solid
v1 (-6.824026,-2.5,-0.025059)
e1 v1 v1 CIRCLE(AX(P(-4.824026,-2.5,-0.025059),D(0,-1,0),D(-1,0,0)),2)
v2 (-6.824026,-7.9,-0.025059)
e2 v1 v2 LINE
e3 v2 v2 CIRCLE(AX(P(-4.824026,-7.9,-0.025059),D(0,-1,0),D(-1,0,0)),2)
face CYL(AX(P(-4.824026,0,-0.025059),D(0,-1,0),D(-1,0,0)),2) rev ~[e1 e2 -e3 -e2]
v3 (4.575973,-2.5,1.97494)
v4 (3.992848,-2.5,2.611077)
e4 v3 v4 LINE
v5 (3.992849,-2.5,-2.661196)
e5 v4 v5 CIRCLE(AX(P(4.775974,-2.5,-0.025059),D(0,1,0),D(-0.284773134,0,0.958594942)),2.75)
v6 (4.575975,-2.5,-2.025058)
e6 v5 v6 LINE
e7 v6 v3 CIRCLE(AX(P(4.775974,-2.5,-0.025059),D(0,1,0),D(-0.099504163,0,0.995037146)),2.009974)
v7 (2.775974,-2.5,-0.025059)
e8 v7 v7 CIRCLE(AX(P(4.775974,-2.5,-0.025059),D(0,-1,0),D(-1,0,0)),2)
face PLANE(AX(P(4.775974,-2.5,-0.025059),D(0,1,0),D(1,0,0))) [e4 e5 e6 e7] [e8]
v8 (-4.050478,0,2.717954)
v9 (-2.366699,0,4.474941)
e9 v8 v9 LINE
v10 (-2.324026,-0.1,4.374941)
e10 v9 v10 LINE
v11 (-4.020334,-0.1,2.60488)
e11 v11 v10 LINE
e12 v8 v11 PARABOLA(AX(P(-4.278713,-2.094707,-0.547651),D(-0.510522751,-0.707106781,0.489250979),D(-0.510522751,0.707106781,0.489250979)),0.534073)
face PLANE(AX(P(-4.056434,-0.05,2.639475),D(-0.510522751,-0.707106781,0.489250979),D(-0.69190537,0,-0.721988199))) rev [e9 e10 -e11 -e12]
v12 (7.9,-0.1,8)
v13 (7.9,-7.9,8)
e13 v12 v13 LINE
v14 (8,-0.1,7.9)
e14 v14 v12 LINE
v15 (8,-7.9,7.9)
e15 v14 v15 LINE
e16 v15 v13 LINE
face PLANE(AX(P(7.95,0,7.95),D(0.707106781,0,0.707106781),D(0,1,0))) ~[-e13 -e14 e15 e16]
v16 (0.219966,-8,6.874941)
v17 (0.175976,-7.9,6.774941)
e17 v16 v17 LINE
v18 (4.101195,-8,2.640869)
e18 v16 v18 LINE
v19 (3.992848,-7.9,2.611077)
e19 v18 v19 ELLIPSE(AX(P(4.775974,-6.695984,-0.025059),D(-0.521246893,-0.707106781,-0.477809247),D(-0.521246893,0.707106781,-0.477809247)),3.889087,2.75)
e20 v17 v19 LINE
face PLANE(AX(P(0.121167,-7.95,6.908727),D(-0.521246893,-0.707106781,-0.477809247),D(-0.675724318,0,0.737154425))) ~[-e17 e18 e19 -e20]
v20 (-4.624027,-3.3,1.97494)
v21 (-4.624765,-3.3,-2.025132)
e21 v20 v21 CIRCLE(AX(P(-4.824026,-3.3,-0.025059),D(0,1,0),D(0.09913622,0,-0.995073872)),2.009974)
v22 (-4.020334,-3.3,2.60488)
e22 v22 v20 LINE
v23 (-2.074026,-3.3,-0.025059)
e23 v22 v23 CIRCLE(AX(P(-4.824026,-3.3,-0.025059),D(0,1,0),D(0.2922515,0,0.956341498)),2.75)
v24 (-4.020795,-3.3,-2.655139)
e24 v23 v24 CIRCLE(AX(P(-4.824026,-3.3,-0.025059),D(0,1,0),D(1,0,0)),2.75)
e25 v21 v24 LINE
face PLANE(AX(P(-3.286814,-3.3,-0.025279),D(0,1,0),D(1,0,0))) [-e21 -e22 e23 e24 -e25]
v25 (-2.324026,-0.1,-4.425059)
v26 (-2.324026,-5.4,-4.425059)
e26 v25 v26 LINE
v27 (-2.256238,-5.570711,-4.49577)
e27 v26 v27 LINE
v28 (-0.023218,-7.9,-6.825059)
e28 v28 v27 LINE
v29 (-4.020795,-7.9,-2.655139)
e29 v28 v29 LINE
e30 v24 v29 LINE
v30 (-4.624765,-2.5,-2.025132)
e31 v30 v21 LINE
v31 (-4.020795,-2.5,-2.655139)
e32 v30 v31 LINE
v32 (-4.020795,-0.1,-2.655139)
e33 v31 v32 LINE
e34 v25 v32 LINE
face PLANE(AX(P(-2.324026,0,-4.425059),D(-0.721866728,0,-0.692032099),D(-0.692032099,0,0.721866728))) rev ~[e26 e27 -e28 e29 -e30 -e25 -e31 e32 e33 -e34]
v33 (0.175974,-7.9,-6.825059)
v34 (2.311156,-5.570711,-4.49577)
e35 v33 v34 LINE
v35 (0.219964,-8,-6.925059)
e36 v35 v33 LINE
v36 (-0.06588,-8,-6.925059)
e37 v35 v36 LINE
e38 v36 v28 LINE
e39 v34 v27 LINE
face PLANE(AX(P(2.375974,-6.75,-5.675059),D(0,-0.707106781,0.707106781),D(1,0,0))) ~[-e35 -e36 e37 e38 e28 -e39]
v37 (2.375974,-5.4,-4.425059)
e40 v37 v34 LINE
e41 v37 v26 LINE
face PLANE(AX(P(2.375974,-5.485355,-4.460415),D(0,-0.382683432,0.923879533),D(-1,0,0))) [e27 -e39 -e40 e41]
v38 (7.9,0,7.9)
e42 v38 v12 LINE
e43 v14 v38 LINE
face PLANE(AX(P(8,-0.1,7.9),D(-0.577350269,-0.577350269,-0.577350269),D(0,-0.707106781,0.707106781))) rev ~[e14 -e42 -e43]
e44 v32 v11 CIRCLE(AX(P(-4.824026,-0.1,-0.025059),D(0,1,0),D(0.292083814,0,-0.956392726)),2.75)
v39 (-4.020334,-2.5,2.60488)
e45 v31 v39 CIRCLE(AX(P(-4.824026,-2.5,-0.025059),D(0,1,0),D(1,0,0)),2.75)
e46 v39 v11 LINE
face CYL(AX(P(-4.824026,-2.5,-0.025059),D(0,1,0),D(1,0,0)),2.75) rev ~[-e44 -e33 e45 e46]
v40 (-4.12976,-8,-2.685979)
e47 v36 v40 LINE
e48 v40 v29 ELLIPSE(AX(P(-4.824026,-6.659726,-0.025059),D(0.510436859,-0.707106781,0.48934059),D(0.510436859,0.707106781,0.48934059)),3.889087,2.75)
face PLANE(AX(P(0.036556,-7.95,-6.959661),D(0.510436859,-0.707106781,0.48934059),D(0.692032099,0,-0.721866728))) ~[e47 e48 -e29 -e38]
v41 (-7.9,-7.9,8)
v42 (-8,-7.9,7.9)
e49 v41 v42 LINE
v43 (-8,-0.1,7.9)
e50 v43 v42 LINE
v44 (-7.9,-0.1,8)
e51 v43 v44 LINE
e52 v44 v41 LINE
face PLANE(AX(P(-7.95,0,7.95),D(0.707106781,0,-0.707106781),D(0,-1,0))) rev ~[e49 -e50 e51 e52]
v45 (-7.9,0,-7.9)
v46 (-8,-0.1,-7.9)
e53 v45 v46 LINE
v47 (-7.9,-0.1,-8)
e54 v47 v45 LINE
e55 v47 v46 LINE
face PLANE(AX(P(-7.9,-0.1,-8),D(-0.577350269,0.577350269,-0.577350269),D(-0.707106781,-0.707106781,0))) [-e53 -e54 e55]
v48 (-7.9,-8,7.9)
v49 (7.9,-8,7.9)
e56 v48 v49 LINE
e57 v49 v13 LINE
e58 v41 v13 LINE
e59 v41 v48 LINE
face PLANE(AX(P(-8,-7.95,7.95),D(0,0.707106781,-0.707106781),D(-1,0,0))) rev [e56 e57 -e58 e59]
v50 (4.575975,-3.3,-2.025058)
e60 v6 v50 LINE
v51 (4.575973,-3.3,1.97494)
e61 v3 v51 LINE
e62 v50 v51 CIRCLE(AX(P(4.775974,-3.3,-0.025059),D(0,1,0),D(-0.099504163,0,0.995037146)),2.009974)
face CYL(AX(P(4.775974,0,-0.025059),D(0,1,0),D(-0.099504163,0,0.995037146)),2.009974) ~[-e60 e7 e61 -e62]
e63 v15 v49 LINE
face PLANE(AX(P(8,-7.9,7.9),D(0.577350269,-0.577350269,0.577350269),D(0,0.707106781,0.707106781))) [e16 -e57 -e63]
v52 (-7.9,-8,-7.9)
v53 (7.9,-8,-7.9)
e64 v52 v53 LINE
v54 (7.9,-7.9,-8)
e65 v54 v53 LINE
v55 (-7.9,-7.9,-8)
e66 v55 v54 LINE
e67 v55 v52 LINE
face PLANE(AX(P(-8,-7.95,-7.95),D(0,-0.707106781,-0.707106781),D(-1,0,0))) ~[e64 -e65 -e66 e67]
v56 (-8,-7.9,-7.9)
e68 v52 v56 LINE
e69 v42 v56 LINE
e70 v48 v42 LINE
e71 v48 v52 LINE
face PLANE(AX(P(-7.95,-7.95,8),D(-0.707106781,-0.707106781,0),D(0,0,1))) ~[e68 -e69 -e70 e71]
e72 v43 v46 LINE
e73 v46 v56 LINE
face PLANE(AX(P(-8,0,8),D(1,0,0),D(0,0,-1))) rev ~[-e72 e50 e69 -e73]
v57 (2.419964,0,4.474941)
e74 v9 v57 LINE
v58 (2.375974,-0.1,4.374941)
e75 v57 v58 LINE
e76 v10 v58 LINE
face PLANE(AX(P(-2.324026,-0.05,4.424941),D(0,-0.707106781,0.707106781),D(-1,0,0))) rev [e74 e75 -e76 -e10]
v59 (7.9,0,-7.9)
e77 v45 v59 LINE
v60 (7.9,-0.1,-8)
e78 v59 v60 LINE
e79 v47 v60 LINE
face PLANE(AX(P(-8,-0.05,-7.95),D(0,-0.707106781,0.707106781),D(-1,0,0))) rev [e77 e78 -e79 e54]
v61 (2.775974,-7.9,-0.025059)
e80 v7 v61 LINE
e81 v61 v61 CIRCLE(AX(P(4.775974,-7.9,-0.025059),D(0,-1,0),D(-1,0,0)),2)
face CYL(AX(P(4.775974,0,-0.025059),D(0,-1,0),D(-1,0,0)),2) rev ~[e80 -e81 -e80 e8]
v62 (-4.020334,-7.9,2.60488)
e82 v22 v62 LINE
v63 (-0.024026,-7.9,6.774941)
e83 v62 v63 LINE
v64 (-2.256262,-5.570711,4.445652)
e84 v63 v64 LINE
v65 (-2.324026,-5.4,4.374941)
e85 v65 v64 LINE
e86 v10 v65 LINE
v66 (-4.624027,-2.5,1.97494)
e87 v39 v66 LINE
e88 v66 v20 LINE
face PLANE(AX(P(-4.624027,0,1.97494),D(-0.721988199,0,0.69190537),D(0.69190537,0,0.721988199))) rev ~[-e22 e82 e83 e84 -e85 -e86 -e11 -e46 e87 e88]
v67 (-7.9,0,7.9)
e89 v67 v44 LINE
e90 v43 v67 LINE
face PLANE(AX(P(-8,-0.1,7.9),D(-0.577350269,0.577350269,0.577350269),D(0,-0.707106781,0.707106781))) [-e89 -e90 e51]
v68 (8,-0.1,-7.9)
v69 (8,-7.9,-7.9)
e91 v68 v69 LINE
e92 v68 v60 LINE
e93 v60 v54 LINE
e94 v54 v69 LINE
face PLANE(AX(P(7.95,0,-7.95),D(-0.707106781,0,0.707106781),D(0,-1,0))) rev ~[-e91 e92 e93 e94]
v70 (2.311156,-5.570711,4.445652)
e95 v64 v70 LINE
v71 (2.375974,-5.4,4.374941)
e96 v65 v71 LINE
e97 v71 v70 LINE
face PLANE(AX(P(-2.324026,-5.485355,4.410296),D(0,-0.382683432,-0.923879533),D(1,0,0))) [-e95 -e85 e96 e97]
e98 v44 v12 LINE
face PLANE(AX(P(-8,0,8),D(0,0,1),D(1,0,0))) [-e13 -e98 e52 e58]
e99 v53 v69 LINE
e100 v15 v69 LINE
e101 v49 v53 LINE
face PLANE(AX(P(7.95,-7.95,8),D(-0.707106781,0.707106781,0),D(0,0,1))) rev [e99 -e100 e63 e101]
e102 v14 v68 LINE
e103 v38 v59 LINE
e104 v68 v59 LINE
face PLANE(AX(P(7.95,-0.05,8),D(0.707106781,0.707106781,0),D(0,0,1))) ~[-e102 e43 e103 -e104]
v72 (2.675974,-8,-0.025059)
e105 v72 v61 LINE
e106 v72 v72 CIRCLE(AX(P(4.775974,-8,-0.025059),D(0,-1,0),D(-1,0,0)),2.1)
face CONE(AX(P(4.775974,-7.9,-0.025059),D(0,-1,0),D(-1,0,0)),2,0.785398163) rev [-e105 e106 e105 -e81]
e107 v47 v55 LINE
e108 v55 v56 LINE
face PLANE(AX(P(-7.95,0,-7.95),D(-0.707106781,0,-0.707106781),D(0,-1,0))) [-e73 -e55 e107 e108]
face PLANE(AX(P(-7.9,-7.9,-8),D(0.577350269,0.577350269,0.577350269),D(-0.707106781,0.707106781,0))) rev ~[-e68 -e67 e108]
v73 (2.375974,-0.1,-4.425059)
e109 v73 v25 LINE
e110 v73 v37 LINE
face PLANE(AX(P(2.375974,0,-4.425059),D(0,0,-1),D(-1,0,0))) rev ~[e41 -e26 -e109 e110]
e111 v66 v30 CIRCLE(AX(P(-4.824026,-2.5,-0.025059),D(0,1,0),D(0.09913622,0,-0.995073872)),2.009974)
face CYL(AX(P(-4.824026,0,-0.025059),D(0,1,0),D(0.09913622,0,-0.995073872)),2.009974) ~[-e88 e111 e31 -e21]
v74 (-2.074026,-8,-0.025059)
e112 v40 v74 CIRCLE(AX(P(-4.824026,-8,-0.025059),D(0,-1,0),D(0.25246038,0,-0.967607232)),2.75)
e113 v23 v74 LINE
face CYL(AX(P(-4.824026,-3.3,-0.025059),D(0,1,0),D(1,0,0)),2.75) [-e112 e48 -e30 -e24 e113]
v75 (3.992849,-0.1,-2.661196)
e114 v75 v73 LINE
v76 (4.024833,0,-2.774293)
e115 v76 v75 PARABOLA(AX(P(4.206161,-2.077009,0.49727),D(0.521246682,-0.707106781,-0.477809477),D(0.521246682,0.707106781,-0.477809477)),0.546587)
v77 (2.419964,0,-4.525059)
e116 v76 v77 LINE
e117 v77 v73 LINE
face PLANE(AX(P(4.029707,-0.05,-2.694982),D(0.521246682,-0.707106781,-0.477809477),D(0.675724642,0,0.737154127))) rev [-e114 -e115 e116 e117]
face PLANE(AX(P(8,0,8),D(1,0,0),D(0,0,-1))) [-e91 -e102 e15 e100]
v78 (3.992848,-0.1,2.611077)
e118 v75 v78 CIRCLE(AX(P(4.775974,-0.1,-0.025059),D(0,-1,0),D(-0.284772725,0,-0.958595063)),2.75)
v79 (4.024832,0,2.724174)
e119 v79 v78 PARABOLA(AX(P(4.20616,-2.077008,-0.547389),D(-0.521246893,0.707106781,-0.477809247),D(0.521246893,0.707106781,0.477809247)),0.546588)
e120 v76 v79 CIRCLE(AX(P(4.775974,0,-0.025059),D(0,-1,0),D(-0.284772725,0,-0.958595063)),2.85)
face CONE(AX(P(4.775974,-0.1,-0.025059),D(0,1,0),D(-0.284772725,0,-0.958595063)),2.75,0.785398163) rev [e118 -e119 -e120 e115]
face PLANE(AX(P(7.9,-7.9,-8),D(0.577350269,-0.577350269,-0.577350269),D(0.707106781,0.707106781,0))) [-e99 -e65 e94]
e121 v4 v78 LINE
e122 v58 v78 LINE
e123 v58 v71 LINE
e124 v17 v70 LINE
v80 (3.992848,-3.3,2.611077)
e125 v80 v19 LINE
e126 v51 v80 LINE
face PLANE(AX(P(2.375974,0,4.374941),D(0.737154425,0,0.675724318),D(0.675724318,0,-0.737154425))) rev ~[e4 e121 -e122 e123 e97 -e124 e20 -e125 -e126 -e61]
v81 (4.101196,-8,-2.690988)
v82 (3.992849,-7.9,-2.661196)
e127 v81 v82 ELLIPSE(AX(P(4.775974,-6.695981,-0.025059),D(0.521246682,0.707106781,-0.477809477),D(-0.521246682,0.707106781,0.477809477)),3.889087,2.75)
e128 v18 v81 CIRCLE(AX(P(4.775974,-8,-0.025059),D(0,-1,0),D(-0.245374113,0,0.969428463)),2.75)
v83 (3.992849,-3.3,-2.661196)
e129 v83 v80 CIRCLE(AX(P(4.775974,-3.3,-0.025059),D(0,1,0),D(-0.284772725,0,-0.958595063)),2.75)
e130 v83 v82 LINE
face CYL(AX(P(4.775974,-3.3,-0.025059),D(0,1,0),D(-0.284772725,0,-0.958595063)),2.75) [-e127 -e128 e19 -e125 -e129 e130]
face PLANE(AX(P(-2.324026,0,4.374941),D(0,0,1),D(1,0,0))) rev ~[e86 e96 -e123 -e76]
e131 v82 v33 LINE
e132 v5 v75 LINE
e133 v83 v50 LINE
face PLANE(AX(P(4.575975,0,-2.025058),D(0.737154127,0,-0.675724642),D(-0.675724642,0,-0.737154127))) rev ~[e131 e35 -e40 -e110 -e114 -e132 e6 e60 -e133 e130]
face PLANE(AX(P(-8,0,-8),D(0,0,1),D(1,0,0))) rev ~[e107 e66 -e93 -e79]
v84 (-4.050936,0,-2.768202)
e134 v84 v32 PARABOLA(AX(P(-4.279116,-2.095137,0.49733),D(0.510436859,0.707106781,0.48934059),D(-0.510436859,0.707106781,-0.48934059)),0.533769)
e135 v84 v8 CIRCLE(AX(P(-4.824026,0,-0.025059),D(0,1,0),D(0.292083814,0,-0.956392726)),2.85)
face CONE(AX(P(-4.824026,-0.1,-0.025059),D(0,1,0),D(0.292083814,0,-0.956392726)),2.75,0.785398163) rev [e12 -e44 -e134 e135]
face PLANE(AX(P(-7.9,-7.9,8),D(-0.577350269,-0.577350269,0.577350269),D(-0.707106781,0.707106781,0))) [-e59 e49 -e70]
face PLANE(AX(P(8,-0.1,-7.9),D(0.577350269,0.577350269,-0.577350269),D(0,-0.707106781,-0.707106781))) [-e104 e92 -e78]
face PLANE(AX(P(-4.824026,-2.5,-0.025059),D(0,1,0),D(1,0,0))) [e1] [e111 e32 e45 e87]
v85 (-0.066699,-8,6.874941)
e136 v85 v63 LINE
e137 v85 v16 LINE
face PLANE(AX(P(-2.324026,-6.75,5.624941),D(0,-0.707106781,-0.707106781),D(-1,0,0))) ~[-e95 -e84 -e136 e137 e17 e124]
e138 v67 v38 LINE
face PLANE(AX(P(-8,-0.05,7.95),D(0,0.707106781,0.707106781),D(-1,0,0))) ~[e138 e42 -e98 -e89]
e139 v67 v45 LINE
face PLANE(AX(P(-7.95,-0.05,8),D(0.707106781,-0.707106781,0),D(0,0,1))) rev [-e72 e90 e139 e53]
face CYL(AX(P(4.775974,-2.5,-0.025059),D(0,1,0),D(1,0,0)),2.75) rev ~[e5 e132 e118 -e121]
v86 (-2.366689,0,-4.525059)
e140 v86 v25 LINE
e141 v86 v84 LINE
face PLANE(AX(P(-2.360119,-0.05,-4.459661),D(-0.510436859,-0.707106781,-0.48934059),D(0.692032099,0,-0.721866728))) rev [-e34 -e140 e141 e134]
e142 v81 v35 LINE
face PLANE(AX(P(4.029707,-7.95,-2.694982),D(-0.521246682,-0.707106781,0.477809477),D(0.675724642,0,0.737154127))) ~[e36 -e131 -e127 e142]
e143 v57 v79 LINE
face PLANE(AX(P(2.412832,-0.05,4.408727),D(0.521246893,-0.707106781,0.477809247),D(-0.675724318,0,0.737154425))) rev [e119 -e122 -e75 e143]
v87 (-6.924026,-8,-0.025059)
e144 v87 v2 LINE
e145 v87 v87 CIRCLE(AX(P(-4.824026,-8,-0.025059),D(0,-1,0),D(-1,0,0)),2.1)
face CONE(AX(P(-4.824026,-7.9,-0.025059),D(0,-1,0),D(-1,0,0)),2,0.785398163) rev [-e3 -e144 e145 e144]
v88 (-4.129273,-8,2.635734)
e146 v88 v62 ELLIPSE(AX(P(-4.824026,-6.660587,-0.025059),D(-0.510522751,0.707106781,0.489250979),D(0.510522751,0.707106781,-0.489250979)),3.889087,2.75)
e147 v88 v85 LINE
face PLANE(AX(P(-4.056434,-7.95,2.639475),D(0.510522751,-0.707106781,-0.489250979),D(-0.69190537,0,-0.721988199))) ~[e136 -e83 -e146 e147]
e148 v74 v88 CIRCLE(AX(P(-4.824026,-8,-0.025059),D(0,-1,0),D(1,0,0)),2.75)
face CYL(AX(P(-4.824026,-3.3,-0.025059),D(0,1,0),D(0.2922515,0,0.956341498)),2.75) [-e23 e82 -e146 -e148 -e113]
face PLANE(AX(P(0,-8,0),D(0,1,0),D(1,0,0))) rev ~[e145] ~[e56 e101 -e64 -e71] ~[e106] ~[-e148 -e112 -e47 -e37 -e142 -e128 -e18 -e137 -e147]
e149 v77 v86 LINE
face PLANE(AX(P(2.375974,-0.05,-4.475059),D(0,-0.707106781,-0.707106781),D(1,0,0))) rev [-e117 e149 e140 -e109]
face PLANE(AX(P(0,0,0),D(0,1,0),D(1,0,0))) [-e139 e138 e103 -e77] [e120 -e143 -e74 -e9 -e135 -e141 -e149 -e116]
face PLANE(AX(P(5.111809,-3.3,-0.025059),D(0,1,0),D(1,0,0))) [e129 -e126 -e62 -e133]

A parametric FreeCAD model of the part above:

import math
import FreeCAD as App
import Part
import Sketcher
from FreeCAD import Vector
Q = App.Units.Quantity


def edges_at(feature, points):
    """Names of the edges that pass closest to the given points."""
    edges = feature.Shape.Edges
    near = lambda p: min(range(len(edges)), key=lambda i: edges[i].distToShape(Part.Vertex(*p))[0])
    return sorted({f"Edge{near(p) + 1}" for p in points})

doc = App.newDocument("Part")
body = doc.addObject("PartDesign::Body", "Body")

# Sketch on XZ plane
sketch1 = doc.addObject("Sketcher::SketchObject", "Sketch")
body.addObject(sketch1)
sketch1.AttachmentSupport = (doc.XZ_Plane, [""])
sketch1.MapMode = "FlatFace"
sketch1.addGeometry([
    Part.LineSegment(Vector(-8, -8, 0), Vector(-8, 8, 0)),  # 0
    Part.LineSegment(Vector(-8, 8, 0), Vector(8, 8, 0)),  # 1
    Part.LineSegment(Vector(8, 8, 0), Vector(8, -8, 0)),  # 2
    Part.LineSegment(Vector(8, -8, 0), Vector(-8, -8, 0)),  # 3
    Part.LineSegment(Vector(-2.324026, 4.374941, 0), Vector(-4.624027, 1.97494, 0)),  # 4
    Part.ArcOfCircle(Part.Circle(Vector(-4.824026, -0.025059, 0), Vector(0, 0, 1), 2.009974), math.radians(-84.310568), math.radians(84.289432)),  # 5
    Part.LineSegment(Vector(-4.624765, -2.025132, 0), Vector(-2.324026, -4.425059, 0)),  # 6
    Part.LineSegment(Vector(-2.324026, -4.425059, 0), Vector(2.375974, -4.425059, 0)),  # 7
    Part.LineSegment(Vector(2.375974, -4.425059, 0), Vector(4.575975, -2.025058, 0)),  # 8
    Part.ArcOfCircle(Part.Circle(Vector(4.775974, -0.025059, 0), Vector(0, 0, 1), 2.009974), math.radians(95.710619), math.radians(264.289432)),  # 9
    Part.LineSegment(Vector(4.575973, 1.97494, 0), Vector(2.375974, 4.374941, 0)),  # 10
    Part.LineSegment(Vector(2.375974, 4.374941, 0), Vector(-2.324026, 4.374941, 0)),  # 11
], False)
sketch1.addConstraint([
    Sketcher.Constraint("Coincident", 0, 2, 1, 1),
    Sketcher.Constraint("Coincident", 1, 2, 2, 1),
    Sketcher.Constraint("Coincident", 2, 2, 3, 1),
    Sketcher.Constraint("Coincident", 3, 2, 0, 1),
    Sketcher.Constraint("Coincident", 4, 2, 5, 2),
    Sketcher.Constraint("Coincident", 5, 1, 6, 1),
    Sketcher.Constraint("Coincident", 6, 2, 7, 1),
    Sketcher.Constraint("Coincident", 7, 2, 8, 1),
    Sketcher.Constraint("Coincident", 8, 2, 9, 2),
    Sketcher.Constraint("Coincident", 9, 1, 10, 1),
    Sketcher.Constraint("Coincident", 10, 2, 11, 1),
    Sketcher.Constraint("Coincident", 11, 2, 4, 1),
    Sketcher.Constraint("Vertical", 0),
    Sketcher.Constraint("Horizontal", 1),
    Sketcher.Constraint("Vertical", 2),
    Sketcher.Constraint("Horizontal", 3),
    Sketcher.Constraint("Horizontal", 7),
    Sketcher.Constraint("Horizontal", 11),
    Sketcher.Constraint("Equal", 5, 9),
    Sketcher.Constraint("Symmetric", 0, 2, 2, 2, -1, 1),
    Sketcher.Constraint("Horizontal", 5, 3, 9, 3),
    Sketcher.Constraint("Horizontal", 4, 2, 9, 1),
    Sketcher.Constraint("Vertical", 8, 2, 9, 1),
    Sketcher.Constraint("Vertical", 7, 2, 10, 2),
    Sketcher.Constraint("Vertical", 6, 2, 11, 2),
    Sketcher.Constraint("Equal", 3, 0),
    Sketcher.Constraint("Equal", 8, 10),
    Sketcher.Constraint("DistanceX", 1, 1, 1, 2, Q("16 mm")),
    Sketcher.Constraint("DistanceX", 7, 1, 7, 2, Q("4.7 mm")),
    Sketcher.Constraint("DistanceY", 5, 3, 4, 2, Q("1.999999 mm")),
    Sketcher.Constraint("DistanceX", 4, 2, 10, 2, Q("7.000001 mm")),
    Sketcher.Constraint("DistanceX", 5, 3, 9, 3, Q("9.6 mm")),
    Sketcher.Constraint("DistanceX", 5, 3, 4, 2, Q("0.199999 mm")),
    Sketcher.Constraint("DistanceY", 6, 2, 5, 3, Q("4.4 mm")),
    Sketcher.Constraint("DistanceY", 5, 3, -1, 1, Q("0.025059 mm")),
    Sketcher.Constraint("DistanceY", 5, 1, -1, 1, Q("2.025132 mm")),
    Sketcher.Constraint("DistanceX", 5, 3, -1, 1, Q("4.824026 mm")),
])
pad1 = doc.addObject("PartDesign::Pad", "Pad")
body.addObject(pad1)
pad1.Profile = sketch1
pad1.Length = 8

# Sketch on XZ plane
sketch2 = doc.addObject("Sketcher::SketchObject", "Sketch001")
body.addObject(sketch2)
sketch2.AttachmentSupport = (doc.XZ_Plane, [""])
sketch2.MapMode = "FlatFace"
sketch2.AttachmentOffset = App.Placement(Vector(0, 0, 3.3), App.Rotation())
sketch2.addGeometry([
    Part.ArcOfCircle(Part.Circle(Vector(4.775974, -0.025059, 0), Vector(0, 0, 1), 2.75), math.radians(0), math.radians(106.545288)),  # 0
    Part.ArcOfCircle(Part.Circle(Vector(4.775974, -0.025059, 0), Vector(0, 0, 1), 2.75), math.radians(-106.545264), math.radians(0)),  # 1
    Part.ArcOfCircle(Part.Circle(Vector(4.775974, -0.025059, 0), Vector(0, 0, 1), 2.75), math.radians(106.545288), math.radians(253.454736)),  # 2
    Part.ArcOfCircle(Part.Circle(Vector(-4.824026, -0.025059, 0), Vector(0, 0, 1), 2.75), math.radians(0), math.radians(73.007202)),  # 3
    Part.ArcOfCircle(Part.Circle(Vector(-4.824026, -0.025059, 0), Vector(0, 0, 1), 2.75), math.radians(-73.017248), math.radians(0)),  # 4
    Part.ArcOfCircle(Part.Circle(Vector(-4.824026, -0.025059, 0), Vector(0, 0, 1), 2.75), math.radians(73.007202), math.radians(286.982752)),  # 5
], False)
sketch2.addConstraint([
    Sketcher.Constraint("Tangent", 0, 1, 1, 2),
    Sketcher.Constraint("Tangent", 1, 1, 2, 2),
    Sketcher.Constraint("Tangent", 2, 1, 0, 2),
    Sketcher.Constraint("Tangent", 3, 1, 4, 2),
    Sketcher.Constraint("Tangent", 4, 1, 5, 2),
    Sketcher.Constraint("Tangent", 5, 1, 3, 2),
    Sketcher.Constraint("Equal", 2, 3),
    Sketcher.Constraint("Horizontal", 2, 3, 3, 3),
    Sketcher.Constraint("Horizontal", 5, 3, 0, 1),
    Sketcher.Constraint("Horizontal", 0, 1, 3, 1),
    Sketcher.Constraint("Vertical", 1, 1, 2, 1),
    Sketcher.Constraint("Radius", 0, Q("2.75 mm")),
    Sketcher.Constraint("DistanceX", 3, 3, 0, 3, Q("9.6 mm")),
    Sketcher.Constraint("DistanceY", 0, 3, -1, 1, Q("0.025059 mm")),
    Sketcher.Constraint("DistanceX", -1, 1, 1, 1, Q("3.992849 mm")),
    Sketcher.Constraint("DistanceY", 4, 1, -1, 1, Q("2.655139 mm")),
    Sketcher.Constraint("DistanceY", -1, 1, 5, 1, Q("2.60488 mm")),
    Sketcher.Constraint("DistanceX", -1, 1, 0, 3, Q("4.775974 mm")),
])
pad2 = doc.addObject("PartDesign::Pad", "Pad001")
body.addObject(pad2)
pad2.Profile = sketch2
pad2.Length = 4.7

# Sketch on XZ plane
sketch3 = doc.addObject("Sketcher::SketchObject", "Sketch002")
body.addObject(sketch3)
sketch3.AttachmentSupport = (doc.XZ_Plane, [""])
sketch3.MapMode = "FlatFace"
sketch3.addGeometry([
    Part.Circle(Vector(4.775974, -0.025059, 0), Vector(0, 0, 1), 2),
    Part.Circle(Vector(-4.824026, -0.025059, 0), Vector(0, 0, 1), 2),
], False)
sketch3.addConstraint([
    Sketcher.Constraint("Equal", 0, 1),
    Sketcher.Constraint("Horizontal", 0, 3, 1, 3),
    Sketcher.Constraint("Diameter", 0, Q("4 mm")),
    Sketcher.Constraint("DistanceX", 1, 3, 0, 3, Q("9.6 mm")),
    Sketcher.Constraint("DistanceY", 0, 3, -1, 1, Q("0.025059 mm")),
    Sketcher.Constraint("DistanceX", -1, 1, 0, 3, Q("4.775974 mm")),
])
doc.recompute()
hole = doc.addObject("PartDesign::Hole", "Hole")
body.addObject(hole)
hole.Profile = sketch3
hole.ThreadType = "None"
hole.Diameter = 4
hole.DepthType = "ThroughAll"
hole.HoleCutType = "Counterbore"
hole.HoleCutDiameter = 5.5
hole.HoleCutDepth = 2.5
hole.Reversed = True
doc.recompute()

chamfer = doc.addObject("PartDesign::Chamfer", "Chamfer")
body.addObject(chamfer)
chamfer.Base = (hole, edges_at(hole, [(0.026, -8, -4.425), (0.026, -8, 4.375)]))
chamfer.Size = 2.5
doc.recompute()

chamfer2 = doc.addObject("PartDesign::Chamfer", "Chamfer001")
body.addObject(chamfer2)
chamfer2.Base = (chamfer, edges_at(chamfer, [
    (-8, -8, 0),
    (0.026, -5.5, -4.425),
    (0.026, -5.5, 4.375),
    (0, -8, 8),
    (-1.974, -8, -4.79),
    (2.039, -8, 4.743),
    (0.026, 0, 4.375),
    (3.184, 0, 3.493),
    (0.026, 0, -4.425),
    (-3.172, 0, -3.54),
    (8, -8, 0),
    (2.039, -8, -4.793),
    (0, 0, 8),
    (-8, 0, 0),
    (0, 0, -8),
    (-1.974, -8, 4.74),
    (8, 0, 0),
    (0, -8, -8),
    (-3.172, 0, 3.49),
    (-7.574, 0, -0.025),
    (8, -4, 8),
    (-8, -4, 8),
    (-8, -4, -8),
    (8, -4, -8),
    (-2.824, -8, -0.025),
    (3.184, 0, -3.543),
    (7.526, 0, -0.025),
    (6.776, -8, -0.025),
]))
chamfer2.Size = 0.1

doc.recompute()
